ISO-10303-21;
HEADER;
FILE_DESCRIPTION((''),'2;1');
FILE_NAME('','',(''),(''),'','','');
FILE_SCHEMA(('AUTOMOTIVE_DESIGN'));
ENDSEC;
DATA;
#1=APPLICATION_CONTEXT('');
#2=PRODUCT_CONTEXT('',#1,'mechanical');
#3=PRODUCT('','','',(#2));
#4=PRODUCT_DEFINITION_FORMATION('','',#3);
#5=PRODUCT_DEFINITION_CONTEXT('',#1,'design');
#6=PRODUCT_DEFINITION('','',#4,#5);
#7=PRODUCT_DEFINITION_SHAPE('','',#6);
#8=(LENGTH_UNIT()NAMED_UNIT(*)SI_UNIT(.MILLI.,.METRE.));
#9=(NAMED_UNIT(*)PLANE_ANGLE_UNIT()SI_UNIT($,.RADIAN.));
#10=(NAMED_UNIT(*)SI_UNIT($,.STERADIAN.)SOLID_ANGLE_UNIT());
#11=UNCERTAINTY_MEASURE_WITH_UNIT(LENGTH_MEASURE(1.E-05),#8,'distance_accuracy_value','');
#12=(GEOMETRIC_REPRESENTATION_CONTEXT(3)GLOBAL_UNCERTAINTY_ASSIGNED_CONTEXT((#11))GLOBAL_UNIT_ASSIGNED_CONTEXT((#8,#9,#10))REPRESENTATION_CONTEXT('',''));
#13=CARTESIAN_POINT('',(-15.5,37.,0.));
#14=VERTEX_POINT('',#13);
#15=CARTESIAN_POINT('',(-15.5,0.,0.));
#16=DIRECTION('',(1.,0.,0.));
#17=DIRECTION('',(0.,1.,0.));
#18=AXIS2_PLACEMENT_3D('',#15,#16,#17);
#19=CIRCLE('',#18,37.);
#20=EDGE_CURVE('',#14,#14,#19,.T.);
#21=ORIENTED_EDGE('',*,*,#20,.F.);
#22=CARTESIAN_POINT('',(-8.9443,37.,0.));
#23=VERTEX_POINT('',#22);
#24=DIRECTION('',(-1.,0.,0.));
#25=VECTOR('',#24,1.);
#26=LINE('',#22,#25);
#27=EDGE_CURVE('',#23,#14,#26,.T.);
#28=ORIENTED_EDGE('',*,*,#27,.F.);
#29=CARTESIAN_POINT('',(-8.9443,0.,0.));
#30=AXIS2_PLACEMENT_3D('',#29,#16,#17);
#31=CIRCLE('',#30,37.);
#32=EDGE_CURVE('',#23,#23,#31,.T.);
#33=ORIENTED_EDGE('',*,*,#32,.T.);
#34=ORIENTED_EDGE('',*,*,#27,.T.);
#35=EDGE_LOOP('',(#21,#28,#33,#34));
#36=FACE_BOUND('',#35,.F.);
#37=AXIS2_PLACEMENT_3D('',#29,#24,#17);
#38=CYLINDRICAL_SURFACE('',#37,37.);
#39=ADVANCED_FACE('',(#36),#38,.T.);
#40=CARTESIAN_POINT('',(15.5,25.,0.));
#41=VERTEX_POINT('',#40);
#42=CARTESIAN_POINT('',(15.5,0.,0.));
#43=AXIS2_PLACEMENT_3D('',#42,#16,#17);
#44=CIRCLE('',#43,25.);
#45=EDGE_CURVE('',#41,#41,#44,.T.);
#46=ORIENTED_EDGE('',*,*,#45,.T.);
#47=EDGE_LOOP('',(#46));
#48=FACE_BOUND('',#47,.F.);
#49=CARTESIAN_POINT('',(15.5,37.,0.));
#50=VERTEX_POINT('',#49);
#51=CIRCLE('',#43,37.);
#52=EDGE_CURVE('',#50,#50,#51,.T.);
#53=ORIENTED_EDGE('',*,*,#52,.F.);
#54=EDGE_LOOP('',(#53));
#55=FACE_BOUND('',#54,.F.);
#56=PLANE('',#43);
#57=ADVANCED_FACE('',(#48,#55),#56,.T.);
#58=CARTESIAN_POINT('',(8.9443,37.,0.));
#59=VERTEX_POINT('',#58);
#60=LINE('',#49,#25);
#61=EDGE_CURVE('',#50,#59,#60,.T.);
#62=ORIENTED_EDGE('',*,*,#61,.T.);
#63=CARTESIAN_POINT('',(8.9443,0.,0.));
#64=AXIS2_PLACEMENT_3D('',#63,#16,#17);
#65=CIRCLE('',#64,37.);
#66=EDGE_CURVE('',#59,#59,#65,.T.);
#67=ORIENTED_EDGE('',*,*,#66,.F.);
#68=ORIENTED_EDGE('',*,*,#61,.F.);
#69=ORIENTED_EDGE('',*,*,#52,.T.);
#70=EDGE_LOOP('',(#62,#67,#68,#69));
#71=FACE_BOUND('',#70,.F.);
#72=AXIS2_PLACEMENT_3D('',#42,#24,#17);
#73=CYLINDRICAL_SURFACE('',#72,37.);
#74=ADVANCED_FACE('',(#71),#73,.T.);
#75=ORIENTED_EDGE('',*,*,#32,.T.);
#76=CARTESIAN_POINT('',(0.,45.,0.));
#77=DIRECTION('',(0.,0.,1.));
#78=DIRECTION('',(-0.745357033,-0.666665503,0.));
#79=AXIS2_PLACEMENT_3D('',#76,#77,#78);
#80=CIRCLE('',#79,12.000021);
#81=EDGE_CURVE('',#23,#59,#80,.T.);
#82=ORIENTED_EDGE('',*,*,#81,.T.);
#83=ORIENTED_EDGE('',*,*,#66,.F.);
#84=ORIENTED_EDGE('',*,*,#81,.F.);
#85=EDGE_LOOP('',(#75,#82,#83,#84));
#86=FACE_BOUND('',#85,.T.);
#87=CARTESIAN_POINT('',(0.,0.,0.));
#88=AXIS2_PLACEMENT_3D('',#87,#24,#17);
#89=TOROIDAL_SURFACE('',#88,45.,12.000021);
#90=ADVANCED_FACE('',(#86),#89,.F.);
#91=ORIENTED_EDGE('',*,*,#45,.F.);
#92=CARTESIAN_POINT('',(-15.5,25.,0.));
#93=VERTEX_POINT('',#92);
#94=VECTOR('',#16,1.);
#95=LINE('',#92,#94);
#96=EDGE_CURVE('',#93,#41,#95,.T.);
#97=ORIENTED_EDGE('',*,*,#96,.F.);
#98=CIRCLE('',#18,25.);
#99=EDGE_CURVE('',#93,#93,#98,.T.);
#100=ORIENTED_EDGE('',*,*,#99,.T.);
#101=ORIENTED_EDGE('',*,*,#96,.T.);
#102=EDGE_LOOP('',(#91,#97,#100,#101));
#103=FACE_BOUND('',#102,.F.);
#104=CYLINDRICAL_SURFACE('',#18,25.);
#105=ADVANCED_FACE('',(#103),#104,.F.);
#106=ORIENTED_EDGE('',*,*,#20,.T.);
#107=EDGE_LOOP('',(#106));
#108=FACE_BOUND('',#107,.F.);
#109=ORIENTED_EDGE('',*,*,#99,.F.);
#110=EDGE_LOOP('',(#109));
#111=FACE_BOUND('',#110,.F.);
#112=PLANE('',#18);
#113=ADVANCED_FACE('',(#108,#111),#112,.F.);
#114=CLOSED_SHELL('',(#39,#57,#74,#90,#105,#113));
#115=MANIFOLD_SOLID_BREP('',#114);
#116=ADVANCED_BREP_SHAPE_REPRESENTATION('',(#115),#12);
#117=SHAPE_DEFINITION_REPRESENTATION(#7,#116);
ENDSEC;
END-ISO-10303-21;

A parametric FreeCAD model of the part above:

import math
import FreeCAD as App
import Part
import Sketcher
from FreeCAD import Vector
Q = App.Units.Quantity

doc = App.newDocument("Part")
params = doc.addObject("Spreadsheet::Sheet", "Params")
for row, (alias, value) in enumerate([
    ("sketch1_radius", "12 mm"),
    ("sketch1_width", "31 mm"),
    ("sketch1_height", "12 mm"),
    ("revolution_angle", "360 deg"),
], start=1):
    params.set(f"A{row}", alias)
    params.set(f"B{row}", "=" + value)
    params.setAlias(f"B{row}", alias)

body = doc.addObject("PartDesign::Body", "Body")

# Sketch on XY plane
sketch1 = body.newObject("Sketcher::SketchObject", "Sketch")
sketch1.AttachmentSupport = (doc.getObject("XY_Plane"), [""])
sketch1.MapMode = "FlatFace"
sketch1.addGeometry([
    Part.LineSegment(Vector(-16, 37, 0), Vector(-16, 25, 0)),  # 0
    Part.LineSegment(Vector(-16, 25, 0), Vector(16, 25, 0)),  # 1
    Part.LineSegment(Vector(16, 25, 0), Vector(16, 37, 0)),  # 2
    Part.LineSegment(Vector(16, 37, 0), Vector(9, 37, 0)),  # 3
    Part.ArcOfCircle(Part.Circle(Vector(0, 45, 0), Vector(0, 0, 1), 12), math.radians(-138), math.radians(-42)),  # 4
    Part.LineSegment(Vector(-9, 37, 0), Vector(-16, 37, 0)),  # 5
], False)
sketch1.addConstraint([
    Sketcher.Constraint("Coincident", 0, 2, 1, 1),
    Sketcher.Constraint("Coincident", 1, 2, 2, 1),
    Sketcher.Constraint("Coincident", 2, 2, 3, 1),
    Sketcher.Constraint("Coincident", 3, 2, 4, 2),
    Sketcher.Constraint("Coincident", 4, 1, 5, 1),
    Sketcher.Constraint("Coincident", 5, 2, 0, 1),
    Sketcher.Constraint("Vertical", 0),
    Sketcher.Constraint("Horizontal", 1),
    Sketcher.Constraint("Vertical", 2),
    Sketcher.Constraint("Horizontal", 3),
    Sketcher.Constraint("Horizontal", 5),
    Sketcher.Constraint("Symmetric", 3, 2, 4, 1, -2),
    Sketcher.Constraint("Equal", 3, 5),
    Sketcher.Constraint("Radius", 4, Q("12 mm")),
    Sketcher.Constraint("DistanceX", 1, 1, 1, 2, Q("31 mm")),
    Sketcher.Constraint("DistanceY", 0, 2, 0, 1, Q("12 mm")),
    Sketcher.Constraint("DistanceY", -1, 1, 0, 2, Q("25 mm")),
    Sketcher.Constraint("DistanceY", 2, 2, 4, 3, Q("8 mm")),
])
sketch1.setExpression("Constraints[13]", "Params.sketch1_radius")
sketch1.setExpression("Constraints[14]", "Params.sketch1_width")
sketch1.setExpression("Constraints[15]", "Params.sketch1_height")
revolution = body.newObject("PartDesign::Revolution", "Revolution")
revolution.Profile = sketch1
revolution.ReferenceAxis = (sketch1, ["H_Axis"])
revolution.setExpression("Angle", "Params.revolution_angle")

doc.recompute()
